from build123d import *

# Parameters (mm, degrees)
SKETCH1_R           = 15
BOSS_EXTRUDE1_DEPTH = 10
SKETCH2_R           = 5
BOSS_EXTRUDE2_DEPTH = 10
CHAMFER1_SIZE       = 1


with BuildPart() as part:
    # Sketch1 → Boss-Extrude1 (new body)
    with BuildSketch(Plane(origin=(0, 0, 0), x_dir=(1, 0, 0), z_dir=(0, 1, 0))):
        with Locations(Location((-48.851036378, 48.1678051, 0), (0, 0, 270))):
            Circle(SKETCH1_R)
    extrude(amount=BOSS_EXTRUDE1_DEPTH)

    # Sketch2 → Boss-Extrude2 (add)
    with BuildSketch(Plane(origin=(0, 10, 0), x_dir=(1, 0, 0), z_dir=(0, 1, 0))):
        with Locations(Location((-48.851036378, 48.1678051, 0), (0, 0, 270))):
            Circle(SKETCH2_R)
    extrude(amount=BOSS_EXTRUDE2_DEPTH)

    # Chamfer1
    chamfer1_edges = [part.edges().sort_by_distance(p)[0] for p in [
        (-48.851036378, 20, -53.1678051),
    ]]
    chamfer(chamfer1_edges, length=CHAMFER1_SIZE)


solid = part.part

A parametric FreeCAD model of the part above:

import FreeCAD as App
import Part
import Sketcher

V = App.Vector
Q = App.Units.Quantity


def edges_at(feature, points):
    """Names of the edges that pass closest to the given points."""
    edges = feature.Shape.Edges
    near = lambda p: min(range(len(edges)), key=lambda i: edges[i].distToShape(Part.Vertex(*p))[0])
    return sorted({f"Edge{near(p) + 1}" for p in points})

doc = App.newDocument("Part")
body = doc.addObject("PartDesign::Body", "Body")

# Sketch on XZ plane
sketch1 = body.newObject("Sketcher::SketchObject", "Sketch")
sketch1.AttachmentSupport = (doc.getObject("XZ_Plane"), [""])
sketch1.MapMode = "FlatFace"
sketch1.addGeometry(Part.Circle(V(-49, -48, 0), V(0, 0, 1), 15), False)
sketch1.addConstraint([
    Sketcher.Constraint("Diameter", 0, Q("30 mm")),
    Sketcher.Constraint("DistanceX", 0, 3, -1, 1, Q("48.851036 mm")),
    Sketcher.Constraint("DistanceY", 0, 3, -1, 1, Q("48.167805 mm")),
])
pad1 = body.newObject("PartDesign::Pad", "Pad")
pad1.Profile = sketch1
pad1.Length = 10
pad1.Reversed = True

# Sketch on XZ plane
sketch2 = body.newObject("Sketcher::SketchObject", "Sketch001")
sketch2.AttachmentSupport = (doc.getObject("XZ_Plane"), [""])
sketch2.MapMode = "FlatFace"
sketch2.AttachmentOffset = App.Placement(V(0, 0, -10), App.Rotation())
sketch2.addGeometry(Part.Circle(V(-49, -48, 0), V(0, 0, 1), 5), False)
sketch2.addConstraint([
    Sketcher.Constraint("Diameter", 0, Q("10 mm")),
    Sketcher.Constraint("DistanceX", 0, 3, -1, 1, Q("48.851036 mm")),
    Sketcher.Constraint("DistanceY", 0, 3, -1, 1, Q("48.167805 mm")),
])
pad2 = body.newObject("PartDesign::Pad", "Pad001")
pad2.Profile = sketch2
pad2.Length = 10
pad2.Reversed = True
doc.recompute()

chamfer = body.newObject("PartDesign::Chamfer", "Chamfer")
chamfer.Base = (pad2, edges_at(pad2, [(-48.851, 20, -53.168)]))
chamfer.Size = 1

doc.recompute()
